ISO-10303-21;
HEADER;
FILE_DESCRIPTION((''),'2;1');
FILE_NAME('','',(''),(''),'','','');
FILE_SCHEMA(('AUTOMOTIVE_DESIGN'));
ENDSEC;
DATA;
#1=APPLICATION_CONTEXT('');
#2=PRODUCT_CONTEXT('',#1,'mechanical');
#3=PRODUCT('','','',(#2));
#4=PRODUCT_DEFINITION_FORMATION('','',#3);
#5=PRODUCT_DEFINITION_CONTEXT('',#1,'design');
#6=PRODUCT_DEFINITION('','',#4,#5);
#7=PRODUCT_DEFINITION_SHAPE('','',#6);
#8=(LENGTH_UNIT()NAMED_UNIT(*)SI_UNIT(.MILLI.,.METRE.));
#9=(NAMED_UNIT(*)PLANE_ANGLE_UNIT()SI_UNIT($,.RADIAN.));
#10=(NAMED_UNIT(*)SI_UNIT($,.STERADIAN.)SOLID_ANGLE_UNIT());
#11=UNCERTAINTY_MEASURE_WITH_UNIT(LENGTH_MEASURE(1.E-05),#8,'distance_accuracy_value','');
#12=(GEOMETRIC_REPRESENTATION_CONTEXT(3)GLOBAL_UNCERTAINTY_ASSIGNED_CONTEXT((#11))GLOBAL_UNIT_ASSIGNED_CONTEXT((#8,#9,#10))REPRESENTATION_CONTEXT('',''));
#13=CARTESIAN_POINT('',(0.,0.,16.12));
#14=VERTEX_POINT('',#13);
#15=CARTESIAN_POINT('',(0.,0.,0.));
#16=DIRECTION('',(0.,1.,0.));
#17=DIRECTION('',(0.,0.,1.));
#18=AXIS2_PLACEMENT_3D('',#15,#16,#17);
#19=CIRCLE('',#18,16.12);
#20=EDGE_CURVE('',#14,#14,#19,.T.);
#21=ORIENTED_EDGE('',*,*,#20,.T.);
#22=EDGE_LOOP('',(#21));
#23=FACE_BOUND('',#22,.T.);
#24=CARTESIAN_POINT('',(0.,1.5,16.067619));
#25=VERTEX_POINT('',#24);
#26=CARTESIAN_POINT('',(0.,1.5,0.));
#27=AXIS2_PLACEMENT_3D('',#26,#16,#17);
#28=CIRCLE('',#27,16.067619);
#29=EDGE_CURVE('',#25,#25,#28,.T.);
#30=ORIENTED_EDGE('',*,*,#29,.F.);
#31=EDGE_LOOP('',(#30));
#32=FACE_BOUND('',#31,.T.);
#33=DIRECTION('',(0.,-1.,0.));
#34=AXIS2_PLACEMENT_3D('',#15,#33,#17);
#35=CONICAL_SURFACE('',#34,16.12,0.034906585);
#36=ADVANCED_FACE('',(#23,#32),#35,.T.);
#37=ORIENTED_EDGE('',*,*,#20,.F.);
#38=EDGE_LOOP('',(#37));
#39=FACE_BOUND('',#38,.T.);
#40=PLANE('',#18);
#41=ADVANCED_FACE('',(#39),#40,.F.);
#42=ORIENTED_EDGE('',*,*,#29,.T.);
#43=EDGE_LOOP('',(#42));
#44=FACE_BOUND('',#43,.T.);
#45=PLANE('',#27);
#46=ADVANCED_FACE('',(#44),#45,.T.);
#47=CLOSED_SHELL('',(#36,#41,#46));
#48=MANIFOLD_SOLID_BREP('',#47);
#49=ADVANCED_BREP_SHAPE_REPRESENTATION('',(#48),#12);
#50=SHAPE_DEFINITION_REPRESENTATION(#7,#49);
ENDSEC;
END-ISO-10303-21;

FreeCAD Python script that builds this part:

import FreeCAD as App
import Part
import Sketcher

V = App.Vector

doc = App.newDocument("Part")
body = doc.addObject("PartDesign::Body", "Body")

sketch1 = doc.addObject("Sketcher::SketchObject", "Sketch")
body.addObject(sketch1)
sketch1.AttachmentSupport = (doc.XZ_Plane, [""])
sketch1.MapMode = "FlatFace"
sketch1.addGeometry(Part.Circle(V(0, 0, 0), V(0, 0, 1), 16), False)
sketch1.addConstraint([
    Sketcher.Constraint("Coincident", 0, 3, -1, 1),
    Sketcher.Constraint("Diameter", 0, 32.24),
])
pad1 = doc.addObject("PartDesign::Pad", "Pad")
body.addObject(pad1)
pad1.Profile = sketch1
pad1.Length = 1.5
pad1.Reversed = True
pad1.TaperAngle = -2

doc.recompute()
